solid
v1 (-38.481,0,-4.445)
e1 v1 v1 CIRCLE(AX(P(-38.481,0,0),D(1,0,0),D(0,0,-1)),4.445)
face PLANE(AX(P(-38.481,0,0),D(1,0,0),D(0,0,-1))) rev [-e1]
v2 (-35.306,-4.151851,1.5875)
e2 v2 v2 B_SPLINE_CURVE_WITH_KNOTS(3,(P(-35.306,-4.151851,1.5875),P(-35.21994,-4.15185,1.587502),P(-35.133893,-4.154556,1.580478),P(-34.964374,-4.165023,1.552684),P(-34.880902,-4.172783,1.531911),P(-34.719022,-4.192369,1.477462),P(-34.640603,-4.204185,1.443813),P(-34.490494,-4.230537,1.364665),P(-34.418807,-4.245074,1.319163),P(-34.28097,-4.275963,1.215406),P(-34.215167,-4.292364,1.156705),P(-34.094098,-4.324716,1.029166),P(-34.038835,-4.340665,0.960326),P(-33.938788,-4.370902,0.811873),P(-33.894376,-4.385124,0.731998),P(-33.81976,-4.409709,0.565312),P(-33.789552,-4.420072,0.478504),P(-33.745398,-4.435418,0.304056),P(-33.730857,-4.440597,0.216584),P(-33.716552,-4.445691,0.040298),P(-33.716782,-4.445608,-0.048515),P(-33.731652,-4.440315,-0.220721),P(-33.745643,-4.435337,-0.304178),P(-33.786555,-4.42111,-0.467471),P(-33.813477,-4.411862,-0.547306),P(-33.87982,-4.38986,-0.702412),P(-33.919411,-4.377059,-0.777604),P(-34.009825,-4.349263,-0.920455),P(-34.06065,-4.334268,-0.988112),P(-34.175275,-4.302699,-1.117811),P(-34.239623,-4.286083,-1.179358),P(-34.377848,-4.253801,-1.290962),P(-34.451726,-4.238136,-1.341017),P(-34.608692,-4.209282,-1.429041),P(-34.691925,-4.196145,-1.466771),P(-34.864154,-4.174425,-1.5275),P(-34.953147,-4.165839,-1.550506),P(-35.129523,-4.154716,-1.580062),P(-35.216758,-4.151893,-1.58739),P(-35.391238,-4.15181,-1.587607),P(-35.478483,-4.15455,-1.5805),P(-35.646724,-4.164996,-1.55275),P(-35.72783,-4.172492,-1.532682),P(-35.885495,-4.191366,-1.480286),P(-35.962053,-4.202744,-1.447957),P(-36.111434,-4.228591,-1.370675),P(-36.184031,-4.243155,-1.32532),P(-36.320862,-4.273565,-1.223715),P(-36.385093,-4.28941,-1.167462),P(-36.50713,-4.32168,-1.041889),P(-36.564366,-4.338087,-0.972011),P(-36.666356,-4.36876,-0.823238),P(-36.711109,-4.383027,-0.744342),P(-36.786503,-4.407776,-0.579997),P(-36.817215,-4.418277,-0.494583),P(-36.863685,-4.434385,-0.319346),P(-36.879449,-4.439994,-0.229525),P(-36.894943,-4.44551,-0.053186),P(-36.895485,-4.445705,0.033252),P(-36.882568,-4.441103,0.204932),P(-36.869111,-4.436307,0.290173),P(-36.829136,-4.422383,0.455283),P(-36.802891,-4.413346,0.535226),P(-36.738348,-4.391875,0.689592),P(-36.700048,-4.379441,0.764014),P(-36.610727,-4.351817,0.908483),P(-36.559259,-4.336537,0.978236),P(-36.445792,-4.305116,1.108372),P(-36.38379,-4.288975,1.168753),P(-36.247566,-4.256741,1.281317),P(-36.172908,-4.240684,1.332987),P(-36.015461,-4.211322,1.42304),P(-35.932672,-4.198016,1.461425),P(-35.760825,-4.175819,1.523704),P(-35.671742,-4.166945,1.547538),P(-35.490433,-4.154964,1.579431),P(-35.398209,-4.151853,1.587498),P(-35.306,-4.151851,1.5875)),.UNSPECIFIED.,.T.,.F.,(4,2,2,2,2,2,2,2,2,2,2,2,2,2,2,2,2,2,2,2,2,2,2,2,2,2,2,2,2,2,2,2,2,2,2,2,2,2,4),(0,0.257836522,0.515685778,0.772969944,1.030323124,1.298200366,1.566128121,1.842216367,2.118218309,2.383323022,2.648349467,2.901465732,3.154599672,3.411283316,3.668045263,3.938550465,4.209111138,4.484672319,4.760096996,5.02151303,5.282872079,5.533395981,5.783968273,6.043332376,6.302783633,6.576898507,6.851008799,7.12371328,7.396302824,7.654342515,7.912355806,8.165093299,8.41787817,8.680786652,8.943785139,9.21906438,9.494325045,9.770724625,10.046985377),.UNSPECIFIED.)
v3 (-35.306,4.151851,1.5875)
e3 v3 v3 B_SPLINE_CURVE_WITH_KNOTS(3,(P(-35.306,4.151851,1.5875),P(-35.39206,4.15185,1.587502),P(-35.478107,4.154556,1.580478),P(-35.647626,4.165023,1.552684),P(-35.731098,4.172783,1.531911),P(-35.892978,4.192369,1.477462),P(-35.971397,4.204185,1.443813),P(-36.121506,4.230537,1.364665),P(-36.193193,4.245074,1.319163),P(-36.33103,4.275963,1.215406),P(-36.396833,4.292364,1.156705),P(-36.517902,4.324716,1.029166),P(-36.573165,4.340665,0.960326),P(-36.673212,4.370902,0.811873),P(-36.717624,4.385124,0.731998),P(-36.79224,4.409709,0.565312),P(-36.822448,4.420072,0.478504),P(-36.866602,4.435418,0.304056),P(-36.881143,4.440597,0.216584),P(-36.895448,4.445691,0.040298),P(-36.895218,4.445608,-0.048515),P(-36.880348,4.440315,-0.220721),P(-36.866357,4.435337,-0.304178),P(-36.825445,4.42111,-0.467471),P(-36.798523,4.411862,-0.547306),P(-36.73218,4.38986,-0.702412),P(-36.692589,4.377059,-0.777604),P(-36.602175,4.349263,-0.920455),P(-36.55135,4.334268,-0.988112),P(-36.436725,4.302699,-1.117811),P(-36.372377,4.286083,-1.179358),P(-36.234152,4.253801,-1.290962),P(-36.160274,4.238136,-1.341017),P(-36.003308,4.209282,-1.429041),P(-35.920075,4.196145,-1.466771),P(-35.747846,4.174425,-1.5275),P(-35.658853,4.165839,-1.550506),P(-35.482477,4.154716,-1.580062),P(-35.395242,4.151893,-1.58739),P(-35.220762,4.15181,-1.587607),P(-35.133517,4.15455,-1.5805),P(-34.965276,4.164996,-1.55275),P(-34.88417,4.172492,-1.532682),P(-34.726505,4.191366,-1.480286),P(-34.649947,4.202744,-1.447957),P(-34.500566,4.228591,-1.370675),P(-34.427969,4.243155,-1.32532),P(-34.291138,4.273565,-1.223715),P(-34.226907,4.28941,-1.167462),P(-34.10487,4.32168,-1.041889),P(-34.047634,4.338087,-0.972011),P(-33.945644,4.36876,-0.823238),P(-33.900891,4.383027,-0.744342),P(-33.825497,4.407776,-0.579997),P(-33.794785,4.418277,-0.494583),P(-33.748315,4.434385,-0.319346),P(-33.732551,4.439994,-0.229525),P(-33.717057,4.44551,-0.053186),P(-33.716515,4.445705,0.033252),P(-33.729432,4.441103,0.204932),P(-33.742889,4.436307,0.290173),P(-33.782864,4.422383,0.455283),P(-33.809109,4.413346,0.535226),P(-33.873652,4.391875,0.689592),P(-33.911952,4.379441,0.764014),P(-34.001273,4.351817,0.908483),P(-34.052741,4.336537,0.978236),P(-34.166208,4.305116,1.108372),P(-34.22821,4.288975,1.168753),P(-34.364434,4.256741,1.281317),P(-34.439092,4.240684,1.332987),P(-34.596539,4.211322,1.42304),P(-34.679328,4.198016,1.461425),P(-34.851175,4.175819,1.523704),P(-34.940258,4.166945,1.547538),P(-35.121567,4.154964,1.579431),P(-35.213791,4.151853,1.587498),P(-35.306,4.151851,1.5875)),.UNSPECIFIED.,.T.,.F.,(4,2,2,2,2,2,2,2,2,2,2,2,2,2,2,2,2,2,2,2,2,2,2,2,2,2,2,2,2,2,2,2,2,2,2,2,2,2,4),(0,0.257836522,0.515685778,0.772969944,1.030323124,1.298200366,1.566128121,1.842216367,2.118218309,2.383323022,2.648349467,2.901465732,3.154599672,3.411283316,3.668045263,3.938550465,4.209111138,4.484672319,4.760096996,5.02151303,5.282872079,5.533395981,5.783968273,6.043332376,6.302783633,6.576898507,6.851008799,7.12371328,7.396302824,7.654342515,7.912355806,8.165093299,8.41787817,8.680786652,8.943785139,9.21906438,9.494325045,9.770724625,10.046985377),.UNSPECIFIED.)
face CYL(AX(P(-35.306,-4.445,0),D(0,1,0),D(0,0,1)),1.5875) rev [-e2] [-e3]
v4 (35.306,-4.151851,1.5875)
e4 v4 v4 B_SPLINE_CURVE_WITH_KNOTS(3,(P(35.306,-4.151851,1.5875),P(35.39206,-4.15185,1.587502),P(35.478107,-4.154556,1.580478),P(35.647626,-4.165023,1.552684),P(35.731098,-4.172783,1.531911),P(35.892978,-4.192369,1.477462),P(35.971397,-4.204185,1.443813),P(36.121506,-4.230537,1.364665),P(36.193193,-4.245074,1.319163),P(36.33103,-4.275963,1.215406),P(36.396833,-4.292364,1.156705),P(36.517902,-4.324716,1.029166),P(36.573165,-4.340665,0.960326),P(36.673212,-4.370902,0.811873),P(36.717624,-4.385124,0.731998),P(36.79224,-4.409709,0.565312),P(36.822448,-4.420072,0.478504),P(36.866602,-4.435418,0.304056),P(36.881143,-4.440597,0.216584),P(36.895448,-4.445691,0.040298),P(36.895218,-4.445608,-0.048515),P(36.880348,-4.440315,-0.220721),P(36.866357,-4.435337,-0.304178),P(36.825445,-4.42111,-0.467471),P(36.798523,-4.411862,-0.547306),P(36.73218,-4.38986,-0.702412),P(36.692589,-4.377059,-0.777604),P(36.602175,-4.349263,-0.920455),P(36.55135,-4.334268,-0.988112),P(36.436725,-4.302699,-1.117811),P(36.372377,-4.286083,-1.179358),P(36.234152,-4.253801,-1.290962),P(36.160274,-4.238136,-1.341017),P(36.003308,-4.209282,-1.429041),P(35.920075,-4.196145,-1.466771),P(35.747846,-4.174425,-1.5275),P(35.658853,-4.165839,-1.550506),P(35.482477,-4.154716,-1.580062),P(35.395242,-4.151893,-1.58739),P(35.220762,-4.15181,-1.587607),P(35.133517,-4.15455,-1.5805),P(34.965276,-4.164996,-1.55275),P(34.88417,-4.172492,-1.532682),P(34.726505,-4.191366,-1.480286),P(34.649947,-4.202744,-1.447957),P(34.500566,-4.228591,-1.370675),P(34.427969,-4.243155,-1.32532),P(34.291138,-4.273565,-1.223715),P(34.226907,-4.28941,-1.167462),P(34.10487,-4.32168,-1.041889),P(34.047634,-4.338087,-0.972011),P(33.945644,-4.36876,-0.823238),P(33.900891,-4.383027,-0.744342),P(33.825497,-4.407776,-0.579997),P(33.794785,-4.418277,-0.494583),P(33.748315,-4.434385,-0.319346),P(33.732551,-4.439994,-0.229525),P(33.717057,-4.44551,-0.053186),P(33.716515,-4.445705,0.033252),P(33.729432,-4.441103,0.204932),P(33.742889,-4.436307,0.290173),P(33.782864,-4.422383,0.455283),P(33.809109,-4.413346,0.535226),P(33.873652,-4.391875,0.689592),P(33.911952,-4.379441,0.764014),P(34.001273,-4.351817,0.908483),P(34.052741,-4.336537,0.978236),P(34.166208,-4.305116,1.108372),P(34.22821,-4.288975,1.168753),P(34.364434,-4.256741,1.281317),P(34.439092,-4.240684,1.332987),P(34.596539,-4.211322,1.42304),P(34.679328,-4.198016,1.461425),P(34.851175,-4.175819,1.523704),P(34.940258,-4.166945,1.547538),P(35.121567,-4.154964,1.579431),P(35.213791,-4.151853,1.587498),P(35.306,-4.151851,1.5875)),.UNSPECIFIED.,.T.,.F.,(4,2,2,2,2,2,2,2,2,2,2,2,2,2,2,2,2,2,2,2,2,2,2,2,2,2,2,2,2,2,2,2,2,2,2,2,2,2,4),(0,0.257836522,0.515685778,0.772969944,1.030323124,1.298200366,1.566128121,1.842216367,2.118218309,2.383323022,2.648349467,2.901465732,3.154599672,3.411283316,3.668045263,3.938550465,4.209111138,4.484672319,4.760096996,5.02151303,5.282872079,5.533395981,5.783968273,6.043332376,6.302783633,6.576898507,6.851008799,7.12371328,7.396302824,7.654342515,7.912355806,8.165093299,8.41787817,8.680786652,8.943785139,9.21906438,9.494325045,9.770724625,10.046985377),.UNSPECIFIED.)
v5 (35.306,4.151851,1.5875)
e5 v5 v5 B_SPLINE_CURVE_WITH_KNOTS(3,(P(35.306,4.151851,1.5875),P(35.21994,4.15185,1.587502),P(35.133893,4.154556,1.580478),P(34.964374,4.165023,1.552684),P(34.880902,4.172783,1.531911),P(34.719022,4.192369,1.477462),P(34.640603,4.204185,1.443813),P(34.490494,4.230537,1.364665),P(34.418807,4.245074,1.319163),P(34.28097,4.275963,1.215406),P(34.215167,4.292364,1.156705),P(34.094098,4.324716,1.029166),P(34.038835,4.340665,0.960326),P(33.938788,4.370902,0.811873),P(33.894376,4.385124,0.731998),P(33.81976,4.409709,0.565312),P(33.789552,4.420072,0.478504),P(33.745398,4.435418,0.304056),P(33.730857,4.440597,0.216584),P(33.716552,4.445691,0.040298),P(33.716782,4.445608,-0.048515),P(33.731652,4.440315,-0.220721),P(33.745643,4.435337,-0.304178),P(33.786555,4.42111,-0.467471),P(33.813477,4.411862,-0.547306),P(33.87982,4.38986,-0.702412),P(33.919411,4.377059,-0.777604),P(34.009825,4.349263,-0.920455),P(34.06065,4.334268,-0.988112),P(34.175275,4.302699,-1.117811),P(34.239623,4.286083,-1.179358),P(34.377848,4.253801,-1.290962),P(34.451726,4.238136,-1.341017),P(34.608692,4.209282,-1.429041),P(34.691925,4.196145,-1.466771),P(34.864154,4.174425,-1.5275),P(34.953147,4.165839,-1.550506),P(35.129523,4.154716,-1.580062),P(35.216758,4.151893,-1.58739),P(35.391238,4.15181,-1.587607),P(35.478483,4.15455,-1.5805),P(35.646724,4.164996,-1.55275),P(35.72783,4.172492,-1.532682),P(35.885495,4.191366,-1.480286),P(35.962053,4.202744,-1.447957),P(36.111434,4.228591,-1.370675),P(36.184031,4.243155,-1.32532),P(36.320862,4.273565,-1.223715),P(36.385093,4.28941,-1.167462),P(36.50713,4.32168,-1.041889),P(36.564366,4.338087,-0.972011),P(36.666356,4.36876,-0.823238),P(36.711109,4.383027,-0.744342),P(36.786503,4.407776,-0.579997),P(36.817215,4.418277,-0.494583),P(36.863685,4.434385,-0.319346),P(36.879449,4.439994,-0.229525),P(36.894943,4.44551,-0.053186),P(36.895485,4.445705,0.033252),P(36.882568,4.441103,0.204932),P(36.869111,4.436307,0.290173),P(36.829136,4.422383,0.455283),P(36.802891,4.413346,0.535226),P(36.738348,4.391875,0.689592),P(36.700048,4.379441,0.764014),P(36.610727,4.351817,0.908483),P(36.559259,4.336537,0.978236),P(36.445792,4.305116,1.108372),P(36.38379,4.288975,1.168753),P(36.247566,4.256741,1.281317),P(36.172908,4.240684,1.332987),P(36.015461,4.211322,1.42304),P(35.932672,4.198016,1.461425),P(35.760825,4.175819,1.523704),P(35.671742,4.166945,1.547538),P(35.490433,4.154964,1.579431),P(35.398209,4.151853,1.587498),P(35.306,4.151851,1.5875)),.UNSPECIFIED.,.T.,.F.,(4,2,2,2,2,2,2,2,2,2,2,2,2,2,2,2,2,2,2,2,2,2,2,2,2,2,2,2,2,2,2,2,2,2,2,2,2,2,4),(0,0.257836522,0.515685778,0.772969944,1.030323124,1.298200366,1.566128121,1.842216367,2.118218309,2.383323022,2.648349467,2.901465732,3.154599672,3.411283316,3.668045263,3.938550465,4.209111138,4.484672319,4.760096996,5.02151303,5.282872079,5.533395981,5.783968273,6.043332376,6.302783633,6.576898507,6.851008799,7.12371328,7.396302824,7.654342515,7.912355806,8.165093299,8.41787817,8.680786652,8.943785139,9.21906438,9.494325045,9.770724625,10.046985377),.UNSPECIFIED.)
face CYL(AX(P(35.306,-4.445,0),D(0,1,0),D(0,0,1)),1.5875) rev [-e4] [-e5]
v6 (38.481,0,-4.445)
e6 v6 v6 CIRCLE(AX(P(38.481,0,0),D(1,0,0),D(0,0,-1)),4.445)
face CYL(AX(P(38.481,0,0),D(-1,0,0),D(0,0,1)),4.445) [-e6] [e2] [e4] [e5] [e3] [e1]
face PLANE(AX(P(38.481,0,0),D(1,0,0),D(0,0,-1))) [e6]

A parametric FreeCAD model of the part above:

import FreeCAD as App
import Part
import Sketcher
from FreeCAD import Vector
Q = App.Units.Quantity

doc = App.newDocument("Part")
body = doc.addObject("PartDesign::Body", "Body")

# Sketch on YZ plane
sketch1 = doc.addObject("Sketcher::SketchObject", "Sketch")
body.addObject(sketch1)
sketch1.AttachmentSupport = (doc.YZ_Plane, [""])
sketch1.MapMode = "FlatFace"
sketch1.addGeometry(Part.Circle(Vector(0, 0, 0), Vector(0, 0, 1), 4.4), False)
sketch1.addConstraint([
    Sketcher.Constraint("Coincident", 0, 3, -1, 1),
    Sketcher.Constraint("Diameter", 0, Q("0.35 in")),
])
pad1 = doc.addObject("PartDesign::Pad", "Pad")
body.addObject(pad1)
pad1.Profile = sketch1
pad1.Length = Q("3.03 in")
pad1.Midplane = True

# Sketch on XZ plane
sketch2 = doc.addObject("Sketcher::SketchObject", "Sketch001")
body.addObject(sketch2)
sketch2.AttachmentSupport = (doc.XZ_Plane, [""])
sketch2.MapMode = "FlatFace"
sketch2.addGeometry([
    Part.Circle(Vector(-35.3, 0, 0), Vector(0, 0, 1), 1.6),
    Part.Circle(Vector(35.3, 0, 0), Vector(0, 0, 1), 1.6),
], False)
sketch2.addConstraint([
    Sketcher.Constraint("Equal", 0, 1),
    Sketcher.Constraint("Symmetric", 0, 3, 1, 3, -1, 1),
    Sketcher.Constraint("PointOnObject", 0, 3, -1),
    Sketcher.Constraint("Diameter", 0, Q("0.125 in")),
    Sketcher.Constraint("DistanceX", 0, 3, -1, 1, Q("1.39 in")),
])
pocket1 = doc.addObject("PartDesign::Pocket", "Pocket")
body.addObject(pocket1)
pocket1.Profile = sketch2
pocket1.Type = "ThroughAll"
pocket1.Midplane = True

doc.recompute()
